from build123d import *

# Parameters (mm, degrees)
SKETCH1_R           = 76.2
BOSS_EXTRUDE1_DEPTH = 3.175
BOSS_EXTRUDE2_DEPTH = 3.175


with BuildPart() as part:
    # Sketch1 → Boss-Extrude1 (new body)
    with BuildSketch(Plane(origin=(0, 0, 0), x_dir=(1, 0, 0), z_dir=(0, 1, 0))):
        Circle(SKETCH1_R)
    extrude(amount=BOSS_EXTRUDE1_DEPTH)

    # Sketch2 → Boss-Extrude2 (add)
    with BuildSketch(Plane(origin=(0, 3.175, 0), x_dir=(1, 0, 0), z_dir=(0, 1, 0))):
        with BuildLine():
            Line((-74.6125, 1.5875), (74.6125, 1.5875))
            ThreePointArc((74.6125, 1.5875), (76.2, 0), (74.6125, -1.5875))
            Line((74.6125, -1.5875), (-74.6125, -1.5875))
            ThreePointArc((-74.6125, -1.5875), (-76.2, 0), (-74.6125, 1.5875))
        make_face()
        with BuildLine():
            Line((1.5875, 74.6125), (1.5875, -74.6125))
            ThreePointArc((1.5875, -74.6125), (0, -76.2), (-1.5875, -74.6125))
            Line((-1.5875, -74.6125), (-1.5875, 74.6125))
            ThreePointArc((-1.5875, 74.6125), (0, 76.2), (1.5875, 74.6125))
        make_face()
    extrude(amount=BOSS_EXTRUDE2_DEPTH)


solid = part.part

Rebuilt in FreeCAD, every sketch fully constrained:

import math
import FreeCAD as App
import Part
import Sketcher

V = App.Vector
Q = App.Units.Quantity

doc = App.newDocument("Part")
body = doc.addObject("PartDesign::Body", "Body")

# Sketch on XZ plane
sketch1 = body.newObject("Sketcher::SketchObject", "Sketch")
sketch1.AttachmentSupport = (doc.getObject("XZ_Plane"), [""])
sketch1.MapMode = "FlatFace"
sketch1.addGeometry(Part.Circle(V(0, 0, 0), V(0, 0, 1), 76.2), False)
sketch1.addConstraint([
    Sketcher.Constraint("Coincident", 0, 3, -1, 1),
    Sketcher.Constraint("Diameter", 0, Q("6 in")),
])
pad1 = body.newObject("PartDesign::Pad", "Pad")
pad1.Profile = sketch1
pad1.Length = Q("0.125 in")
pad1.Reversed = True

# Sketch on XZ plane
sketch2 = body.newObject("Sketcher::SketchObject", "Sketch001")
sketch2.AttachmentSupport = (doc.getObject("XZ_Plane"), [""])
sketch2.MapMode = "FlatFace"
sketch2.AttachmentOffset = App.Placement(V(0, 0, -0.125 * 25.4), App.Rotation())
sketch2.addGeometry([
    Part.ArcOfCircle(Part.Circle(V(-74.6125, 0, 0), V(0, 0, 1), 1.5875), math.radians(90), math.radians(270)),  # 0
    Part.LineSegment(V(-74.6125, 1.5875, 0), V(-1.5875, 1.5875, 0)),  # 1
    Part.LineSegment(V(-1.5875, 1.5875, 0), V(-1.5875, 74.6125, 0)),  # 2
    Part.ArcOfCircle(Part.Circle(V(0, 74.6125, 0), V(0, 0, 1), 1.5875), math.radians(0), math.radians(180)),  # 3
    Part.LineSegment(V(1.5875, 74.6125, 0), V(1.5875, 1.5875, 0)),  # 4
    Part.LineSegment(V(1.5875, 1.5875, 0), V(74.6125, 1.5875, 0)),  # 5
    Part.ArcOfCircle(Part.Circle(V(74.6125, 0, 0), V(0, 0, 1), 1.5875), math.radians(-90), math.radians(90)),  # 6
    Part.LineSegment(V(74.6125, -1.5875, 0), V(1.5875, -1.5875, 0)),  # 7
    Part.LineSegment(V(1.5875, -1.5875, 0), V(1.5875, -74.6125, 0)),  # 8
    Part.ArcOfCircle(Part.Circle(V(0, -74.6125, 0), V(0, 0, 1), 1.5875), math.radians(180), math.radians(360)),  # 9
    Part.LineSegment(V(-1.5875, -74.6125, 0), V(-1.5875, -1.5875, 0)),  # 10
    Part.LineSegment(V(-1.5875, -1.5875, 0), V(-74.6125, -1.5875, 0)),  # 11
], False)
sketch2.addConstraint([
    Sketcher.Constraint("Tangent", 0, 1, 1, 1),
    Sketcher.Constraint("Coincident", 1, 2, 2, 1),
    Sketcher.Constraint("Tangent", 2, 2, 3, 2),
    Sketcher.Constraint("Tangent", 3, 1, 4, 1),
    Sketcher.Constraint("Coincident", 4, 2, 5, 1),
    Sketcher.Constraint("Tangent", 5, 2, 6, 2),
    Sketcher.Constraint("Tangent", 6, 1, 7, 1),
    Sketcher.Constraint("Coincident", 7, 2, 8, 1),
    Sketcher.Constraint("Tangent", 8, 2, 9, 2),
    Sketcher.Constraint("Tangent", 9, 1, 10, 1),
    Sketcher.Constraint("Coincident", 10, 2, 11, 1),
    Sketcher.Constraint("Tangent", 11, 2, 0, 2),
    Sketcher.Constraint("Horizontal", 1),
    Sketcher.Constraint("Vertical", 2),
    Sketcher.Constraint("Vertical", 4),
    Sketcher.Constraint("Horizontal", 5),
    Sketcher.Constraint("Horizontal", 7),
    Sketcher.Constraint("Vertical", 8),
    Sketcher.Constraint("Vertical", 10),
    Sketcher.Constraint("Horizontal", 11),
    Sketcher.Constraint("Equal", 0, 3),
    Sketcher.Constraint("Equal", 3, 6),
    Sketcher.Constraint("Equal", 6, 9),
    Sketcher.Constraint("Symmetric", 0, 3, 6, 3, -1, 1),
    Sketcher.Constraint("Symmetric", 3, 3, 9, 3, -1, 1),
    Sketcher.Constraint("Symmetric", 1, 2, 4, 2, -2),
    Sketcher.Constraint("Equal", 11, 2),
    Sketcher.Constraint("Radius", 0, Q("0.0625 in")),
    Sketcher.Constraint("DistanceY", 9, 3, 0, 1, Q("3 in")),
])
pad2 = body.newObject("PartDesign::Pad", "Pad001")
pad2.Profile = sketch2
pad2.Length = Q("0.125 in")
pad2.Reversed = True

doc.recompute()
